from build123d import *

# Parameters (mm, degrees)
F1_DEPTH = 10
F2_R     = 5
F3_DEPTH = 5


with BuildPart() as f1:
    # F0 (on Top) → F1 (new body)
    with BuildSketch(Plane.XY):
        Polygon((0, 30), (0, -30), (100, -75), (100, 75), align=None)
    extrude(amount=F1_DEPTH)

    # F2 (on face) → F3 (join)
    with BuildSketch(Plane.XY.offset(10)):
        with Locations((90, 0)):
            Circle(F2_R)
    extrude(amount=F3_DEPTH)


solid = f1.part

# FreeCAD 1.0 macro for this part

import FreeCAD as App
import Part
import Sketcher
from FreeCAD import Vector
Q = App.Units.Quantity


def add_polygon(sketch, points):
    """Adds a closed chain of lines whose ends are joined by coincident constraints."""
    first, n = sketch.GeometryCount, len(points)
    for a, b in zip(points, points[1:] + points[:1]):
        sketch.addGeometry(Part.LineSegment(App.Vector(*a, 0), App.Vector(*b, 0)), False)
    for i in range(n):
        sketch.addConstraint(Sketcher.Constraint("Coincident", first + i, 2, first + (i + 1) % n, 1))

doc = App.newDocument("Part")
body = doc.addObject("PartDesign::Body", "Body")

# Sketch on XY plane
sketch1 = body.newObject("Sketcher::SketchObject", "Sketch")
sketch1.AttachmentSupport = (doc.getObject("XY_Plane"), [""])
sketch1.MapMode = "FlatFace"
add_polygon(sketch1, [(0, 30), (0, -30), (100, -75), (100, 75)])  # lines 0-3
sketch1.addConstraint([
    Sketcher.Constraint("Vertical", 0),
    Sketcher.Constraint("Vertical", 2),
    Sketcher.Constraint("Symmetric", 0, 2, 3, 2, -1, 1),
    Sketcher.Constraint("Equal", 1, 3),
    Sketcher.Constraint("DistanceY", 0, 2, 0, 1, Q("60 mm")),
    Sketcher.Constraint("DistanceY", 2, 1, 2, 2, Q("150 mm")),
    Sketcher.Constraint("DistanceX", -1, 1, 1, 2, Q("100 mm")),
])
pad1 = body.newObject("PartDesign::Pad", "Pad")
pad1.Profile = sketch1
pad1.Length = 10

# Sketch on XY plane
sketch2 = body.newObject("Sketcher::SketchObject", "Sketch001")
sketch2.AttachmentSupport = (doc.getObject("XY_Plane"), [""])
sketch2.MapMode = "FlatFace"
sketch2.AttachmentOffset = App.Placement(Vector(0, 0, 10), App.Rotation())
sketch2.addGeometry(Part.Circle(Vector(90, 0, 0), Vector(0, 0, 1), 5), False)
sketch2.addConstraint([
    Sketcher.Constraint("PointOnObject", 0, 3, -1),
    Sketcher.Constraint("Diameter", 0, Q("10 mm")),
    Sketcher.Constraint("DistanceX", -1, 1, 0, 3, Q("90 mm")),
])
pad2 = body.newObject("PartDesign::Pad", "Pad001")
pad2.Profile = sketch2
pad2.Length = 5

doc.recompute()
